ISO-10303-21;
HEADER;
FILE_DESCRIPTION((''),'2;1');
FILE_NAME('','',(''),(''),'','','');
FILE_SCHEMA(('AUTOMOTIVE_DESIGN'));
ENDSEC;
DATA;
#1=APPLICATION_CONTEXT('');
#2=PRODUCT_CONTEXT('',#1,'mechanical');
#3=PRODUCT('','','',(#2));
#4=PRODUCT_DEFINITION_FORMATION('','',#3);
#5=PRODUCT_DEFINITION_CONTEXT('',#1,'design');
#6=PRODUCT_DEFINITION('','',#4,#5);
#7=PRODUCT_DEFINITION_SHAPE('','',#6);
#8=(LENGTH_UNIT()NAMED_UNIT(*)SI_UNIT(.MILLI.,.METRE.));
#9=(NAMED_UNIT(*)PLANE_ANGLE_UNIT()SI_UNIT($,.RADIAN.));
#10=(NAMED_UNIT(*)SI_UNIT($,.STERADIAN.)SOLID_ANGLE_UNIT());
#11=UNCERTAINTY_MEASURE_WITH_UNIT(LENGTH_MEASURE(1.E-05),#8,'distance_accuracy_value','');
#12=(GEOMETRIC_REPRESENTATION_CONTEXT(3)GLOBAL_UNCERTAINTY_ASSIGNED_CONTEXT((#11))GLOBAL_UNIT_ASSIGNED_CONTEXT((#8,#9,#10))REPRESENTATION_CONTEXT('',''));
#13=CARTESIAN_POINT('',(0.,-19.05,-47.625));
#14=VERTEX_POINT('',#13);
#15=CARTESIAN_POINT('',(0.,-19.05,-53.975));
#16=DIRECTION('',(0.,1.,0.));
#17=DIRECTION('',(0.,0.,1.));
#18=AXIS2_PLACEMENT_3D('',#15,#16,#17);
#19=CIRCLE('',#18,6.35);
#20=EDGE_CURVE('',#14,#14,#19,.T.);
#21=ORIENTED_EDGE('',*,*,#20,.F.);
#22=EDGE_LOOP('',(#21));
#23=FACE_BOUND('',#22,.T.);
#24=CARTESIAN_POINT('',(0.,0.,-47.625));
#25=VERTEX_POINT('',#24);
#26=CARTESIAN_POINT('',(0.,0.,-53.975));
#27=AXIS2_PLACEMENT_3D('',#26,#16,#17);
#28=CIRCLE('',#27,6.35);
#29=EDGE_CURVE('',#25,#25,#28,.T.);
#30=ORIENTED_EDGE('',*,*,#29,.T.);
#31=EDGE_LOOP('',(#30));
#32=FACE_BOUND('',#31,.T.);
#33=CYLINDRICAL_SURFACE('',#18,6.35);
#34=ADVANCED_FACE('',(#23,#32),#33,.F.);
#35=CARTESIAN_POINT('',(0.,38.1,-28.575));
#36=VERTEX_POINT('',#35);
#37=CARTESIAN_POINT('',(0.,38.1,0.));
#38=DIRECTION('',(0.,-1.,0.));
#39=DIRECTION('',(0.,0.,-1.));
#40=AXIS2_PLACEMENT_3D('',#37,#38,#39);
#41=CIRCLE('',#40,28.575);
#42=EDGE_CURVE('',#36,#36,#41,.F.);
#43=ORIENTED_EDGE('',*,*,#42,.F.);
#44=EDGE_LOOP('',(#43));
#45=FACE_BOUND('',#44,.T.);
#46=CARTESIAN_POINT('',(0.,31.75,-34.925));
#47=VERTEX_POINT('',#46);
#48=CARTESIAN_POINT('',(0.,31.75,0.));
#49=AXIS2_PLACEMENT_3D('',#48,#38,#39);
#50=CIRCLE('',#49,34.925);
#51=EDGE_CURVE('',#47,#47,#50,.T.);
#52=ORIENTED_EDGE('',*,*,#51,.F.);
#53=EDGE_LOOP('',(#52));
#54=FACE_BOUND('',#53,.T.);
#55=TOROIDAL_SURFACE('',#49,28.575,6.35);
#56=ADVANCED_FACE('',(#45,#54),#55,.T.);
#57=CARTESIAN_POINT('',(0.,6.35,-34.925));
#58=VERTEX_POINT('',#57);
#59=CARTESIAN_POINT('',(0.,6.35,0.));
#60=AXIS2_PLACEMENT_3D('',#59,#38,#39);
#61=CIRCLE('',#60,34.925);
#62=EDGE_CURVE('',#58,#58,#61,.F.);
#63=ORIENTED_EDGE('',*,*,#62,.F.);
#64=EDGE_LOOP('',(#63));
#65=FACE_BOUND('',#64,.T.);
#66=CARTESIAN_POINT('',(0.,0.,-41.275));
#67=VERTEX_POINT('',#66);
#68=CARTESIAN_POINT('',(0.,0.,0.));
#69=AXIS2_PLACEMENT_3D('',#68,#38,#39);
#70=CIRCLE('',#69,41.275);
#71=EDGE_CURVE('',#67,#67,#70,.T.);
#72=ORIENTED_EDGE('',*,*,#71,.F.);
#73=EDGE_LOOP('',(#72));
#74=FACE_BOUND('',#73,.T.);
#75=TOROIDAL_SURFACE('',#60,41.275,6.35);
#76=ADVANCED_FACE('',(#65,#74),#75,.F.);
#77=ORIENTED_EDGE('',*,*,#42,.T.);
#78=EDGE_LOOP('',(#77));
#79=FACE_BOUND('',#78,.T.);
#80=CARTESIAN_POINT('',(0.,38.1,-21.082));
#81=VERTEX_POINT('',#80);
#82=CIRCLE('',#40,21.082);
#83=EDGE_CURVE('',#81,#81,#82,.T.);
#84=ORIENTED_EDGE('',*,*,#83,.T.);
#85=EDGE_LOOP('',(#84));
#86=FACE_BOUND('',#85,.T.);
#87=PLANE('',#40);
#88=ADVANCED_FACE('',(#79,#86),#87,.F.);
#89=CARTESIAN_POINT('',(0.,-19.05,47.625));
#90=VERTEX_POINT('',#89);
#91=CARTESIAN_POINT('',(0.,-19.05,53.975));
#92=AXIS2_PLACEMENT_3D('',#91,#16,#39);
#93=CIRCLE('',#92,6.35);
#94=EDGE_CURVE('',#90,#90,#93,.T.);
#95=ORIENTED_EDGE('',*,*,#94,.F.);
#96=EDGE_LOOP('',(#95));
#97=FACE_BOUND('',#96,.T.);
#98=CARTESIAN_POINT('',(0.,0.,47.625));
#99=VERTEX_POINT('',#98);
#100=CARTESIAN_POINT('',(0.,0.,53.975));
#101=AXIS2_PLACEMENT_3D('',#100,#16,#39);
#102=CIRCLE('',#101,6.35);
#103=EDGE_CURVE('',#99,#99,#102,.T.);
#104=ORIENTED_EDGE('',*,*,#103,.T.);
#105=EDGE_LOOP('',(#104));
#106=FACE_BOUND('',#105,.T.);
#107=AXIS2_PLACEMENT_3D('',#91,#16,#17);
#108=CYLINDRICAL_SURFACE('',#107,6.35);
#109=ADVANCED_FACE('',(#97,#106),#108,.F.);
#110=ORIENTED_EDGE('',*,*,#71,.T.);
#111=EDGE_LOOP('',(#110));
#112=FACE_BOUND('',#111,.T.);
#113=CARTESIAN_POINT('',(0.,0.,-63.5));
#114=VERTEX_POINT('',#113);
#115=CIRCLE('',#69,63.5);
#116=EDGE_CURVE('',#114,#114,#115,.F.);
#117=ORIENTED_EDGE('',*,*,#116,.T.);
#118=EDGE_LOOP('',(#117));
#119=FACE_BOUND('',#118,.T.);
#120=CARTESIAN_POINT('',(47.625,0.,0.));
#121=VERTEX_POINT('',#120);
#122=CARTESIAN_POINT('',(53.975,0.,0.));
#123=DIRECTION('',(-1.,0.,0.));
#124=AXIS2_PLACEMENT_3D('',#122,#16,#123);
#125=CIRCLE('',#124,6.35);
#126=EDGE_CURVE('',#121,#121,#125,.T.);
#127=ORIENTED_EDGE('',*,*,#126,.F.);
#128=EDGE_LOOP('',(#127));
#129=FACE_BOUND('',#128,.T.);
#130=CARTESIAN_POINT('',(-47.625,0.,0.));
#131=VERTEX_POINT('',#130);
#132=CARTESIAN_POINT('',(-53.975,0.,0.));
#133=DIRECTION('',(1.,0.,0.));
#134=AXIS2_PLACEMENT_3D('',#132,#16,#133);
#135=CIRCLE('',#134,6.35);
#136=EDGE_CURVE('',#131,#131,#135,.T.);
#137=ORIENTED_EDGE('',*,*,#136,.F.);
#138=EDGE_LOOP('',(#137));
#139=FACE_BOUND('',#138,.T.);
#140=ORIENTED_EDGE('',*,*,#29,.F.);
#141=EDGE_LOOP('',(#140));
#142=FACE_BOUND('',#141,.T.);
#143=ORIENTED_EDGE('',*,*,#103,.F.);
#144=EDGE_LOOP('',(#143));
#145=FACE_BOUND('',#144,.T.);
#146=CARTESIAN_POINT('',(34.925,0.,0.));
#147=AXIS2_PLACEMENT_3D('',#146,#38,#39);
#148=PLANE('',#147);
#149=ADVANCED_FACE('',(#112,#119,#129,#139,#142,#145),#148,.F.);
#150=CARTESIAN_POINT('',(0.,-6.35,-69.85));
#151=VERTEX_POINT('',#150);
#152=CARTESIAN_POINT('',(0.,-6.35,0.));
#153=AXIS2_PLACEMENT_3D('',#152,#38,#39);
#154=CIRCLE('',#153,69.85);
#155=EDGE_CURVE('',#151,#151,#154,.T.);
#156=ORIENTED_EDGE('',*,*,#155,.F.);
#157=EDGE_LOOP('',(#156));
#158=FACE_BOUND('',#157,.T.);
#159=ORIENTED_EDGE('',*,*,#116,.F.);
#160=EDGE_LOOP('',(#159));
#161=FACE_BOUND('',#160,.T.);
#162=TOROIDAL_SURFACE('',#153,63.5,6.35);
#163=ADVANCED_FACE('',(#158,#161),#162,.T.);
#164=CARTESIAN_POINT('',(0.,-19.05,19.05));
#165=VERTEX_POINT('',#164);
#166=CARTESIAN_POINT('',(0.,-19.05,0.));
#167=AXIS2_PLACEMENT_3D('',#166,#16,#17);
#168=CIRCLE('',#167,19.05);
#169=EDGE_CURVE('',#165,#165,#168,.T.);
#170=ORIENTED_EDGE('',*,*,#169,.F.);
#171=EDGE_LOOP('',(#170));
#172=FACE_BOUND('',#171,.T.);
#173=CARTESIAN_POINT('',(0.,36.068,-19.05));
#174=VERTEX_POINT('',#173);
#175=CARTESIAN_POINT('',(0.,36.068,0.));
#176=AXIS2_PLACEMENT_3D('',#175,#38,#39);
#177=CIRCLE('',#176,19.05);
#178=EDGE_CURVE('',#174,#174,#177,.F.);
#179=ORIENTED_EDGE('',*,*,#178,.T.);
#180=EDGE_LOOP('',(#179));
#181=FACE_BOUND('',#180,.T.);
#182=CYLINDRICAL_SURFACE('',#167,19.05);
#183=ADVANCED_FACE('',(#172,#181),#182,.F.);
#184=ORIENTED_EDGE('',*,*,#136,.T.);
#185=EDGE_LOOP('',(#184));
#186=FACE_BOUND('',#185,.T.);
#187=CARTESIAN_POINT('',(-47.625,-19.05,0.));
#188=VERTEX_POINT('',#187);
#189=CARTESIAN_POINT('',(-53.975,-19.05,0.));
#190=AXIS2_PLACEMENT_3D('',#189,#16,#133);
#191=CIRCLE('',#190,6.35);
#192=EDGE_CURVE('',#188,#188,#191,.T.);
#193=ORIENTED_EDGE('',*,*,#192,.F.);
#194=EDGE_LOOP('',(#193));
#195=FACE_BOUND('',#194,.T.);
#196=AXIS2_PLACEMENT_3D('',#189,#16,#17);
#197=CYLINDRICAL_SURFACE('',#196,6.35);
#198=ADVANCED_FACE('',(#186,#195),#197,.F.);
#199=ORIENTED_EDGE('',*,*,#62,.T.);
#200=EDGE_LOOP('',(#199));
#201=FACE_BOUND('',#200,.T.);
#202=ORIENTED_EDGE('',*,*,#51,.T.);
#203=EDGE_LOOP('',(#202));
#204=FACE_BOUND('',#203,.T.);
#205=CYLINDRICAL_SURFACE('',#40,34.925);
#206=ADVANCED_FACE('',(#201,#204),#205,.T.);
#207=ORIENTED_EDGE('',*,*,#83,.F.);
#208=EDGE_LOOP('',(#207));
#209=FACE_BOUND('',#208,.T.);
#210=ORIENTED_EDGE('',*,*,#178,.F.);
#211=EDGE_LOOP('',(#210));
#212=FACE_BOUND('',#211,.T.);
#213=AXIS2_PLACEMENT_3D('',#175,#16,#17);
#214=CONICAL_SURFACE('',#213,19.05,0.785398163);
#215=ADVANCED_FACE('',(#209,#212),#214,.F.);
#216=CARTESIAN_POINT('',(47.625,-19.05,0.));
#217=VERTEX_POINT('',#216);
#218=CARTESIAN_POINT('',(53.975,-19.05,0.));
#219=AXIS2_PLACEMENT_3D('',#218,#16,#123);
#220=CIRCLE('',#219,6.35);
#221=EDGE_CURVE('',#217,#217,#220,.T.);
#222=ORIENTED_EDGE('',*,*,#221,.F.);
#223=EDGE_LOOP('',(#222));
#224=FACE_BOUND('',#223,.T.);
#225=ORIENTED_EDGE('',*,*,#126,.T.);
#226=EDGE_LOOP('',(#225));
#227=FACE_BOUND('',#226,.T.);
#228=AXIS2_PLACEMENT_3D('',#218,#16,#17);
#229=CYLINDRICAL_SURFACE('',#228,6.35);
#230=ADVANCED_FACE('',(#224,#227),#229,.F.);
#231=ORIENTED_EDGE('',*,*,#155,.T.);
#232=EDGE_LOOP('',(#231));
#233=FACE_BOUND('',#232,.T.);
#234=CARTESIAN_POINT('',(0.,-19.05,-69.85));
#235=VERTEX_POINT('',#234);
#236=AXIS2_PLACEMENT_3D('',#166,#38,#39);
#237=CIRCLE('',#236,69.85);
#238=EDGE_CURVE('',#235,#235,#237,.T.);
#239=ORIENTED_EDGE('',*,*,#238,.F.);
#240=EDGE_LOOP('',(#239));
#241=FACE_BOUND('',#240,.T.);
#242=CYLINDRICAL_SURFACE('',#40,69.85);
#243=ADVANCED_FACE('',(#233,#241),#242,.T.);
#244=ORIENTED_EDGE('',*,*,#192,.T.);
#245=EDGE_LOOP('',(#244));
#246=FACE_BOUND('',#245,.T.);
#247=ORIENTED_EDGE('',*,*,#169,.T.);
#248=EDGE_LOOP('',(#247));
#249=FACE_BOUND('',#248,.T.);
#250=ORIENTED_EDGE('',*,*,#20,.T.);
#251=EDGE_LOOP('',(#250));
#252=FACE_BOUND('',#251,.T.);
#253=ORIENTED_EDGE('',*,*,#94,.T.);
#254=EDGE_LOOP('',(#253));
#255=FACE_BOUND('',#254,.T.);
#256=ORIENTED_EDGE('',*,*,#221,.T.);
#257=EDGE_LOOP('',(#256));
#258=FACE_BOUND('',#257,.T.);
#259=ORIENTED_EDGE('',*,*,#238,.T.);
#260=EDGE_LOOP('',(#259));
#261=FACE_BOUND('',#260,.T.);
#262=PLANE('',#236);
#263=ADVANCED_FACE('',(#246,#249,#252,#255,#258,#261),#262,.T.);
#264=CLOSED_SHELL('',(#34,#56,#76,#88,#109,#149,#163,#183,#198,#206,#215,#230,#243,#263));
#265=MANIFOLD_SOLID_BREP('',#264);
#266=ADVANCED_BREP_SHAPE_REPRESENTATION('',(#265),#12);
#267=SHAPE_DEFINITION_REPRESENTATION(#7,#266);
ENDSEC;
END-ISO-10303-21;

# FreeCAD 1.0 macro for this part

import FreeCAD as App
import Part
import Sketcher
from FreeCAD import Vector
Q = App.Units.Quantity


def edges_at(feature, points):
    """Names of the edges that pass closest to the given points."""
    edges = feature.Shape.Edges
    near = lambda p: min(range(len(edges)), key=lambda i: edges[i].distToShape(Part.Vertex(*p))[0])
    return sorted({f"Edge{near(p) + 1}" for p in points})


def add_polygon(sketch, points):
    """Adds a closed chain of lines whose ends are joined by coincident constraints."""
    first, n = sketch.GeometryCount, len(points)
    for a, b in zip(points, points[1:] + points[:1]):
        sketch.addGeometry(Part.LineSegment(App.Vector(*a, 0), App.Vector(*b, 0)), False)
    for i in range(n):
        sketch.addConstraint(Sketcher.Constraint("Coincident", first + i, 2, first + (i + 1) % n, 1))

doc = App.newDocument("Part")
body = doc.addObject("PartDesign::Body", "Body")

# Sketch on XY plane
sketch1 = body.newObject("Sketcher::SketchObject", "Sketch")
sketch1.AttachmentSupport = (doc.getObject("XY_Plane"), [""])
sketch1.MapMode = "FlatFace"
add_polygon(sketch1, [(70, 0), (35, 0), (35, 38), (0, 38), (0, -19), (70, -19)])  # lines 0-5
sketch1.addConstraint([
    Sketcher.Constraint("Horizontal", 0),
    Sketcher.Constraint("Vertical", 1),
    Sketcher.Constraint("Horizontal", 2),
    Sketcher.Constraint("Vertical", 3),
    Sketcher.Constraint("Horizontal", 4),
    Sketcher.Constraint("Vertical", 5),
    Sketcher.Constraint("PointOnObject", 0, 2, -1),
    Sketcher.Constraint("PointOnObject", 2, 2, -2),
    Sketcher.Constraint("Equal", 0, 2),
    Sketcher.Constraint("DistanceY", 1, 1, 1, 2, Q("1.5 in")),
    Sketcher.Constraint("DistanceX", 4, 1, 4, 2, Q("2.75 in")),
    Sketcher.Constraint("DistanceY", 3, 2, 3, 1, Q("2.25 in")),
])
revolution = body.newObject("PartDesign::Revolution", "Revolution")
revolution.Profile = sketch1
revolution.ReferenceAxis = (sketch1, ["V_Axis"])
revolution.Angle = 360

# Sketch on XZ plane
sketch2 = body.newObject("Sketcher::SketchObject", "Sketch001")
sketch2.AttachmentSupport = (doc.getObject("XZ_Plane"), [""])
sketch2.MapMode = "FlatFace"
sketch2.AttachmentOffset = App.Placement(Vector(0, 0, -1.5 * 25.4), App.Rotation())
sketch2.addGeometry(Part.Circle(Vector(0, 0, 0), Vector(0, 0, 1), 19), False)
sketch2.addConstraint([
    Sketcher.Constraint("Coincident", 0, 3, -1, 1),
    Sketcher.Constraint("Diameter", 0, Q("1.5 in")),
])
pocket1 = body.newObject("PartDesign::Pocket", "Pocket")
pocket1.Profile = sketch2
pocket1.Type = "ThroughAll"
pocket1.Reversed = True

# Sketch on XZ plane
sketch3 = body.newObject("Sketcher::SketchObject", "Sketch002")
sketch3.AttachmentSupport = (doc.getObject("XZ_Plane"), [""])
sketch3.MapMode = "FlatFace"
sketch3.addGeometry(Part.Circle(Vector(0, -54, 0), Vector(0, 0, 1), 6), False)
sketch3.addConstraint([
    Sketcher.Constraint("PointOnObject", 0, 3, -2),
    Sketcher.Constraint("Diameter", 0, Q("0.5 in")),
    Sketcher.Constraint("DistanceY", 0, 3, -1, 1, Q("2.125 in")),
])
pocket2 = body.newObject("PartDesign::Pocket", "Pocket001")
pocket2.Profile = sketch3
pocket2.Type = "ThroughAll"
pocket2.Reversed = True
doc.recompute()

polarpattern = body.newObject("PartDesign::PolarPattern", "PolarPattern")
polarpattern.Originals = [pocket2]
polarpattern.Axis = (doc.getObject("Y_Axis"), [""])
polarpattern.Angle = 360
polarpattern.Occurrences = 4
body.Tip = polarpattern
doc.recompute()

fillet = body.newObject("PartDesign::Fillet", "Fillet")
fillet.Base = (polarpattern, edges_at(polarpattern, [(0, 38.1, 34.925), (0, 0, 34.925), (0, 0, 69.85)]))
fillet.Radius = Q("0.25 in")
doc.recompute()

chamfer = body.newObject("PartDesign::Chamfer", "Chamfer")
chamfer.Base = (fillet, edges_at(fillet, [(0, 38.1, -19.05)]))
chamfer.Size = Q("0.08 in")

doc.recompute()
